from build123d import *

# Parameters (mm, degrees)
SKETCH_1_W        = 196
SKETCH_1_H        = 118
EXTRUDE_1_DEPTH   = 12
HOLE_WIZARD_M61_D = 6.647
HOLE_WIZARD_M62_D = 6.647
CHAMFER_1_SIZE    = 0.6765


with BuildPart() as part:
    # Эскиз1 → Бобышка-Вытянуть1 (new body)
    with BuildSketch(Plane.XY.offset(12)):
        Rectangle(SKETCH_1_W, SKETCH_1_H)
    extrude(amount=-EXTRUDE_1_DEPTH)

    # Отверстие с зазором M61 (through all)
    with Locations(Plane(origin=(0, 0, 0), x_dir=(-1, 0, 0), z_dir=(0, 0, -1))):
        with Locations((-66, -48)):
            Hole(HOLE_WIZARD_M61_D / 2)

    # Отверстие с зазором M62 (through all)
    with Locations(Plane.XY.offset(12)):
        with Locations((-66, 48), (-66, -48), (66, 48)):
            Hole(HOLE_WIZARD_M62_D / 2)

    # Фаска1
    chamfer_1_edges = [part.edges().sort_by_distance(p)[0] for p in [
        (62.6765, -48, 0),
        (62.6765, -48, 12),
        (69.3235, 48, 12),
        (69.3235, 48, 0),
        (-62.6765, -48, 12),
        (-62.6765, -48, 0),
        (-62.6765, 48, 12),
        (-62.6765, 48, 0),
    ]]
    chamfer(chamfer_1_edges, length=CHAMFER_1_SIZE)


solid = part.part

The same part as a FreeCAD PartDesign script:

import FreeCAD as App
import Part
import Sketcher


def edges_at(feature, points):
    """Names of the edges that pass closest to the given points."""
    edges = feature.Shape.Edges
    near = lambda p: min(range(len(edges)), key=lambda i: edges[i].distToShape(Part.Vertex(*p))[0])
    return sorted({f"Edge{near(p) + 1}" for p in points})


def add_polygon(sketch, points):
    """Adds a closed chain of lines whose ends are joined by coincident constraints."""
    first, n = sketch.GeometryCount, len(points)
    for a, b in zip(points, points[1:] + points[:1]):
        sketch.addGeometry(Part.LineSegment(App.Vector(*a, 0), App.Vector(*b, 0)), False)
    for i in range(n):
        sketch.addConstraint(Sketcher.Constraint("Coincident", first + i, 2, first + (i + 1) % n, 1))

doc = App.newDocument("Part")
body = doc.addObject("PartDesign::Body", "Body")

# Sketch on XY plane
sketch1 = body.newObject("Sketcher::SketchObject", "Sketch")
sketch1.AttachmentSupport = (doc.getObject("XY_Plane"), [""])
sketch1.MapMode = "FlatFace"
sketch1.AttachmentOffset = App.Placement(App.Vector(0, 0, 12), App.Rotation())
add_polygon(sketch1, [(-98, 59), (-98, -59), (98, -59), (98, 59)])  # lines 0-3
sketch1.addConstraint(Sketcher.Constraint("Vertical", 0))
sketch1.addConstraint(Sketcher.Constraint("Horizontal", 1))
sketch1.addConstraint(Sketcher.Constraint("Vertical", 2))
sketch1.addConstraint(Sketcher.Constraint("Horizontal", 3))
sketch1.addConstraint(Sketcher.Constraint("Symmetric", 0, 2, 2, 2, -1, 1))
sketch1.addConstraint(Sketcher.Constraint("DistanceX", 1, 1, 1, 2, 196.0))
sketch1.addConstraint(Sketcher.Constraint("DistanceY", 0, 2, 0, 1, 118.0))
pad1 = body.newObject("PartDesign::Pad", "Pad")
pad1.Profile = sketch1
pad1.Length = 12
pad1.Reversed = True

# Sketch on XY plane
sketch2 = body.newObject("Sketcher::SketchObject", "Sketch001")
sketch2.AttachmentSupport = (doc.getObject("XY_Plane"), [""])
sketch2.MapMode = "FlatFace"
sketch2.addGeometry(Part.Circle(App.Vector(66, -48, 0), App.Vector(0, 0, 1), 3.3), False)
sketch2.addConstraint(Sketcher.Constraint("Diameter", 0, 6.647))
sketch2.addConstraint(Sketcher.Constraint("DistanceX", -1, 1, 0, 3, 66.0))
sketch2.addConstraint(Sketcher.Constraint("DistanceY", 0, 3, -1, 1, 48.0))
doc.recompute()
hole = body.newObject("PartDesign::Hole", "Hole")
hole.Profile = sketch2
hole.ThreadType = "None"
hole.Diameter = 6.647
hole.DepthType = "ThroughAll"
hole.Reversed = True

# Sketch on XY plane
sketch3 = body.newObject("Sketcher::SketchObject", "Sketch002")
sketch3.AttachmentSupport = (doc.getObject("XY_Plane"), [""])
sketch3.MapMode = "FlatFace"
sketch3.AttachmentOffset = App.Placement(App.Vector(0, 0, 12), App.Rotation())
sketch3.addGeometry(Part.Circle(App.Vector(-66, 48, 0), App.Vector(0, 0, 1), 3.3), False)
sketch3.addGeometry(Part.Circle(App.Vector(-66, -48, 0), App.Vector(0, 0, 1), 3.3), False)
sketch3.addGeometry(Part.Circle(App.Vector(66, 48, 0), App.Vector(0, 0, 1), 3.3), False)
sketch3.addConstraint(Sketcher.Constraint("Equal", 0, 1))
sketch3.addConstraint(Sketcher.Constraint("Equal", 1, 2))
sketch3.addConstraint(Sketcher.Constraint("Symmetric", 1, 3, 2, 3, -1, 1))
sketch3.addConstraint(Sketcher.Constraint("Symmetric", 0, 3, 2, 3, -2))
sketch3.addConstraint(Sketcher.Constraint("Diameter", 0, 6.647))
sketch3.addConstraint(Sketcher.Constraint("DistanceX", 0, 3, -1, 1, 66.0))
sketch3.addConstraint(Sketcher.Constraint("DistanceY", -1, 1, 0, 3, 48.0))
doc.recompute()
hole2 = body.newObject("PartDesign::Hole", "Hole001")
hole2.Profile = sketch3
hole2.ThreadType = "None"
hole2.Diameter = 6.647
hole2.DepthType = "ThroughAll"
doc.recompute()

chamfer = body.newObject("PartDesign::Chamfer", "Chamfer")
chamfer.Base = (hole2, edges_at(hole2, [
    (62.676, -48, 0),
    (62.676, -48, 12),
    (69.323, 48, 12),
    (69.323, 48, 0),
    (-62.676, -48, 12),
    (-62.676, -48, 0),
    (-62.676, 48, 12),
    (-62.676, 48, 0),
]))
chamfer.Size = 0.6765

doc.recompute()
